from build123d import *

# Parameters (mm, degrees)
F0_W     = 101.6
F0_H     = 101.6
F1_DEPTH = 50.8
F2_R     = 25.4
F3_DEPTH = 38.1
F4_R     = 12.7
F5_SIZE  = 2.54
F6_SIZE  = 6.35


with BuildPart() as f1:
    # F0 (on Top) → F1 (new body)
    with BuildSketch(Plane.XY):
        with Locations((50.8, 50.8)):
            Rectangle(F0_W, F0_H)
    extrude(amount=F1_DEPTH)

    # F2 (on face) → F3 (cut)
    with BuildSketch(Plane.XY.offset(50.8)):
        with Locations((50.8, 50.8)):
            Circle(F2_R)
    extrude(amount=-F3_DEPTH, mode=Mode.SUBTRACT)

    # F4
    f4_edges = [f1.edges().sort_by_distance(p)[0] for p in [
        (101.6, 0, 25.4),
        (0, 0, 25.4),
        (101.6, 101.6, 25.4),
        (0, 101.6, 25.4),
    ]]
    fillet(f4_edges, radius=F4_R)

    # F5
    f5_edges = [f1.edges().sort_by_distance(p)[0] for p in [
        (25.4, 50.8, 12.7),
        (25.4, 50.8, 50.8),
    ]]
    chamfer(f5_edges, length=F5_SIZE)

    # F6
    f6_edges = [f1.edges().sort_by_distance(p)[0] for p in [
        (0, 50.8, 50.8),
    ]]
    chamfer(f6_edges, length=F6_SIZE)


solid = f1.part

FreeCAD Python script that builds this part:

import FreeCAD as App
import Part
import Sketcher
Q = App.Units.Quantity


def edges_at(feature, points):
    """Names of the edges that pass closest to the given points."""
    edges = feature.Shape.Edges
    near = lambda p: min(range(len(edges)), key=lambda i: edges[i].distToShape(Part.Vertex(*p))[0])
    return sorted({f"Edge{near(p) + 1}" for p in points})


def add_polygon(sketch, points):
    """Adds a closed chain of lines whose ends are joined by coincident constraints."""
    first, n = sketch.GeometryCount, len(points)
    for a, b in zip(points, points[1:] + points[:1]):
        sketch.addGeometry(Part.LineSegment(App.Vector(*a, 0), App.Vector(*b, 0)), False)
    for i in range(n):
        sketch.addConstraint(Sketcher.Constraint("Coincident", first + i, 2, first + (i + 1) % n, 1))

doc = App.newDocument("Part")
body = doc.addObject("PartDesign::Body", "Body")

# Sketch on XY plane
sketch1 = doc.addObject("Sketcher::SketchObject", "Sketch")
body.addObject(sketch1)
sketch1.AttachmentSupport = (doc.XY_Plane, [""])
sketch1.MapMode = "FlatFace"
add_polygon(sketch1, [(0, 102), (0, 0), (102, 0), (102, 102)])  # lines 0-3
sketch1.addConstraint(Sketcher.Constraint("Vertical", 0))
sketch1.addConstraint(Sketcher.Constraint("Horizontal", 1))
sketch1.addConstraint(Sketcher.Constraint("Vertical", 2))
sketch1.addConstraint(Sketcher.Constraint("Horizontal", 3))
sketch1.addConstraint(Sketcher.Constraint("Coincident", 0, 2, -1, 1))
sketch1.addConstraint(Sketcher.Constraint("Equal", 3, 0))
sketch1.addConstraint(Sketcher.Constraint("DistanceX", 1, 1, 1, 2, Q("4 in")))
pad1 = doc.addObject("PartDesign::Pad", "Pad")
body.addObject(pad1)
pad1.Profile = sketch1
pad1.Length = Q("2 in")

# Sketch on XY plane
sketch2 = doc.addObject("Sketcher::SketchObject", "Sketch001")
body.addObject(sketch2)
sketch2.AttachmentSupport = (doc.XY_Plane, [""])
sketch2.MapMode = "FlatFace"
sketch2.AttachmentOffset = App.Placement(App.Vector(0, 0, 2 * 25.4), App.Rotation())
sketch2.addGeometry(Part.Circle(App.Vector(51, 51, 0), App.Vector(0, 0, 1), 25), False)
sketch2.addConstraint(Sketcher.Constraint("Diameter", 0, Q("2 in")))
sketch2.addConstraint(Sketcher.Constraint("DistanceX", -1, 1, 0, 3, Q("2 in")))
sketch2.addConstraint(Sketcher.Constraint("DistanceY", -1, 1, 0, 3, Q("2 in")))
pocket1 = doc.addObject("PartDesign::Pocket", "Pocket")
body.addObject(pocket1)
pocket1.Profile = sketch2
pocket1.Length = Q("1.5 in")
doc.recompute()

fillet = doc.addObject("PartDesign::Fillet", "Fillet")
body.addObject(fillet)
fillet.Base = (pocket1, edges_at(pocket1, [
    (101.6, 0, 25.4),
    (0, 0, 25.4),
    (101.6, 101.6, 25.4),
    (0, 101.6, 25.4),
]))
fillet.Radius = Q("0.5 in")
doc.recompute()

chamfer = doc.addObject("PartDesign::Chamfer", "Chamfer")
body.addObject(chamfer)
chamfer.Base = (fillet, edges_at(fillet, [(25.4, 50.8, 12.7), (25.4, 50.8, 50.8)]))
chamfer.Size = Q("0.1 in")
doc.recompute()

chamfer2 = doc.addObject("PartDesign::Chamfer", "Chamfer001")
body.addObject(chamfer2)
chamfer2.Base = (chamfer, edges_at(chamfer, [(0, 50.8, 50.8)]))
chamfer2.Size = Q("0.25 in")

doc.recompute()
